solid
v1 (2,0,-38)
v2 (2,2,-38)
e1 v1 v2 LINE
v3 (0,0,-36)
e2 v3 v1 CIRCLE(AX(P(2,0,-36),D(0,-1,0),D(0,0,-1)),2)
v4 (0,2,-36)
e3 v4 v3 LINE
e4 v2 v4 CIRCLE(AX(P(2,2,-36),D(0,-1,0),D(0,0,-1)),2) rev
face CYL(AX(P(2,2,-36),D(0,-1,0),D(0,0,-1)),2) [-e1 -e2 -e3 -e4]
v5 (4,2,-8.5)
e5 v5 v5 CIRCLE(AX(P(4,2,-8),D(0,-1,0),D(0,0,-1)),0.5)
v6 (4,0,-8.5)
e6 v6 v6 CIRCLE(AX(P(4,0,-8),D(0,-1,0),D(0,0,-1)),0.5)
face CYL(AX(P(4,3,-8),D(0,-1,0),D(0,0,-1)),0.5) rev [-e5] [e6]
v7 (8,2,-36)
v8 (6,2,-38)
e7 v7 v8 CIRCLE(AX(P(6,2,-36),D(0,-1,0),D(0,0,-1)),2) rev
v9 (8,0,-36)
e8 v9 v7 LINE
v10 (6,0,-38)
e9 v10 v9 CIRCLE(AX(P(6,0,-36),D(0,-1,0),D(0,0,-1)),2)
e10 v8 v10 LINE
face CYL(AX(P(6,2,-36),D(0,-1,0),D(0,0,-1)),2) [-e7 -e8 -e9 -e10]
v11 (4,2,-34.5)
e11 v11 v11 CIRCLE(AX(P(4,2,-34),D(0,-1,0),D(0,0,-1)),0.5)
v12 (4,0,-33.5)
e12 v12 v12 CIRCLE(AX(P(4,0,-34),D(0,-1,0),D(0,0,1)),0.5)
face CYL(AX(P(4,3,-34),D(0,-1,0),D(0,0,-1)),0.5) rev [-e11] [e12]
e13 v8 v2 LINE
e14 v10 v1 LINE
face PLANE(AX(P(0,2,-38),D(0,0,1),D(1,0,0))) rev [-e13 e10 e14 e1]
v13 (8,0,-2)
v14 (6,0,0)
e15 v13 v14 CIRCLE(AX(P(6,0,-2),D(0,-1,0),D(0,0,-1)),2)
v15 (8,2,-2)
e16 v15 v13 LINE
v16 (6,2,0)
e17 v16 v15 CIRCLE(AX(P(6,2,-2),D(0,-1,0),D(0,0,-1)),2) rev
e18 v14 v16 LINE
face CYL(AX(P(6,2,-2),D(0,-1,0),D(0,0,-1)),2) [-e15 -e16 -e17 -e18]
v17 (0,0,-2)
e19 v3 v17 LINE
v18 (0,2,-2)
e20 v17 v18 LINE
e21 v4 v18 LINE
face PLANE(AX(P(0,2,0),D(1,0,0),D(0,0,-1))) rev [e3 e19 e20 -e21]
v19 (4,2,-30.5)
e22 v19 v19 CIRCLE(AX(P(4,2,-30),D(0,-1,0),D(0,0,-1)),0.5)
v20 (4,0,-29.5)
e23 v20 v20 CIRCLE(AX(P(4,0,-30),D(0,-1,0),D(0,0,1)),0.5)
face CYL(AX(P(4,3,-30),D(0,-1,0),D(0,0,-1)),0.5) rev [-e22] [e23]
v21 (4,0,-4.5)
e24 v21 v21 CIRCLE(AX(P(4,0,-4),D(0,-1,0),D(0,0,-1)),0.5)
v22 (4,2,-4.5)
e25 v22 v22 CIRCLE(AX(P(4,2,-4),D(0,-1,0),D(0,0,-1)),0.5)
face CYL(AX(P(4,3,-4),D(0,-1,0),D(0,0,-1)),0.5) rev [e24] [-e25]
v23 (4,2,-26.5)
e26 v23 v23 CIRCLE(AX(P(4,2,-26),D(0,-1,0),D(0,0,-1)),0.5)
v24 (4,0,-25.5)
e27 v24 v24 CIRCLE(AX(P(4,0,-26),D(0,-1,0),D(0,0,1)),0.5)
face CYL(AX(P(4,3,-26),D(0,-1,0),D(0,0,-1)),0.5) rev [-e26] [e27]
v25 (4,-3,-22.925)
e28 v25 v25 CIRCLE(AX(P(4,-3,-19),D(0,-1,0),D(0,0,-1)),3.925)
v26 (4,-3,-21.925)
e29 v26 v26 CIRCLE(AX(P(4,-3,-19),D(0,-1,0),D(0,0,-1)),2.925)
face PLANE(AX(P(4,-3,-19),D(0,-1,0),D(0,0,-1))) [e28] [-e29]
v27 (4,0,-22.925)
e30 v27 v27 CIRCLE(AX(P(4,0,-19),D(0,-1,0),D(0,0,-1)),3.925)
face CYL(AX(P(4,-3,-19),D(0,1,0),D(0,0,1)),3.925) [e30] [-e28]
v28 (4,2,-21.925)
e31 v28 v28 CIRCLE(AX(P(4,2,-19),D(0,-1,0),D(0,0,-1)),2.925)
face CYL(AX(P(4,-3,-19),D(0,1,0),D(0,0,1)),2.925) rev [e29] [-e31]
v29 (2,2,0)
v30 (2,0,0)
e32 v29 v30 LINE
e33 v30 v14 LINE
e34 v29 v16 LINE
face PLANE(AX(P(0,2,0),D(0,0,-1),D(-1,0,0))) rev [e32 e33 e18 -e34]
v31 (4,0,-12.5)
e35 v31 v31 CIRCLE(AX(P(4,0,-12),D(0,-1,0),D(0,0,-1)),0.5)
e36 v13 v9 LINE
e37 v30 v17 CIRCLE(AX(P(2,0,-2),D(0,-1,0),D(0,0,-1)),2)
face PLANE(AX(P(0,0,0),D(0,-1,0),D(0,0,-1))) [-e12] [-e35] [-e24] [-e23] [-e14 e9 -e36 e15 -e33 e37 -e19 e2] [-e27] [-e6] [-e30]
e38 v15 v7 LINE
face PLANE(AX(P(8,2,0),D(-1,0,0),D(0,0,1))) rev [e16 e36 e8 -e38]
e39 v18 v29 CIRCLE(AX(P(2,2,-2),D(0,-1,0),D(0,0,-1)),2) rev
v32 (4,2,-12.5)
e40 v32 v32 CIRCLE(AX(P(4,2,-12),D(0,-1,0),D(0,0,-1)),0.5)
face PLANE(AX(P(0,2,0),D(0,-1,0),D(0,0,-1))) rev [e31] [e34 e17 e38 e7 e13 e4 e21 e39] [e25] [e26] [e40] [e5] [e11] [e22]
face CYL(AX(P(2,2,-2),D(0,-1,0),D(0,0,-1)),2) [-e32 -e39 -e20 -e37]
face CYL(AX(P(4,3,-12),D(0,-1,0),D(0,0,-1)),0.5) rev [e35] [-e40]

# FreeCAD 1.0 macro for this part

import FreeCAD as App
import Part
import Sketcher

V = App.Vector
Q = App.Units.Quantity


def edges_at(feature, points):
    """Names of the edges that pass closest to the given points."""
    edges = feature.Shape.Edges
    near = lambda p: min(range(len(edges)), key=lambda i: edges[i].distToShape(Part.Vertex(*p))[0])
    return sorted({f"Edge{near(p) + 1}" for p in points})

doc = App.newDocument("Part")
body = doc.addObject("PartDesign::Body", "Body")

# Sketch on XZ plane
sketch1 = body.newObject("Sketcher::SketchObject", "Sketch")
sketch1.AttachmentSupport = (doc.getObject("XZ_Plane"), [""])
sketch1.MapMode = "FlatFace"
sketch1.addGeometry([
    Part.LineSegment(V(0, -38, 0), V(0, 0, 0)),
    Part.LineSegment(V(0, 0, 0), V(8, 0, 0)),
    Part.LineSegment(V(8, 0, 0), V(8, -38, 0)),
    Part.LineSegment(V(8, -38, 0), V(0, -38, 0)),
], False)
sketch1.addConstraint([
    Sketcher.Constraint("Coincident", 0, 2, 1, 1),
    Sketcher.Constraint("Coincident", 1, 2, 2, 1),
    Sketcher.Constraint("Coincident", 2, 2, 3, 1),
    Sketcher.Constraint("Coincident", 3, 2, 0, 1),
    Sketcher.Constraint("Vertical", 0),
    Sketcher.Constraint("Horizontal", 1),
    Sketcher.Constraint("Vertical", 2),
    Sketcher.Constraint("Horizontal", 3),
    Sketcher.Constraint("Coincident", 0, 2, -1, 1),
    Sketcher.Constraint("DistanceX", 1, 1, 1, 2, Q("8 mm")),
    Sketcher.Constraint("DistanceY", 0, 1, 0, 2, Q("38 mm")),
])
pad1 = body.newObject("PartDesign::Pad", "Pad")
pad1.Profile = sketch1
pad1.Length = 2
pad1.Reversed = True

# Sketch on XZ plane
sketch2 = body.newObject("Sketcher::SketchObject", "Sketch001")
sketch2.AttachmentSupport = (doc.getObject("XZ_Plane"), [""])
sketch2.MapMode = "FlatFace"
sketch2.addGeometry([
    Part.Circle(V(4, -19, 0), V(0, 0, 1), 3.9),
    Part.Circle(V(4, -19, 0), V(0, 0, 1), 2.9),
], False)
sketch2.addConstraint([
    Sketcher.Constraint("Coincident", 1, 3, 0, 3),
    Sketcher.Constraint("Diameter", 0, Q("7.85 mm")),
    Sketcher.Constraint("Diameter", 1, Q("5.85 mm")),
    Sketcher.Constraint("DistanceX", -1, 1, 0, 3, Q("4 mm")),
    Sketcher.Constraint("DistanceY", 0, 3, -1, 1, Q("19 mm")),
])
pad2 = body.newObject("PartDesign::Pad", "Pad001")
pad2.Profile = sketch2
pad2.Length = 3

# Sketch on XZ plane
sketch3 = body.newObject("Sketcher::SketchObject", "Sketch002")
sketch3.AttachmentSupport = (doc.getObject("XZ_Plane"), [""])
sketch3.MapMode = "FlatFace"
sketch3.AttachmentOffset = App.Placement(V(0, 0, -3), App.Rotation())
sketch3.addGeometry([
    Part.Circle(V(4, -19, 0), V(0, 0, 1), 2.9),  # 0
    Part.Circle(V(4, -4, 0), V(0, 0, 1), 0.5),  # 1
    Part.Circle(V(4, -8, 0), V(0, 0, 1), 0.5),  # 2
    Part.Circle(V(4, -12, 0), V(0, 0, 1), 0.5),  # 3
    Part.Circle(V(4, -26, 0), V(0, 0, 1), 0.5),  # 4
    Part.Circle(V(4, -30, 0), V(0, 0, 1), 0.5),  # 5
    Part.Circle(V(4, -34, 0), V(0, 0, 1), 0.5),  # 6
], False)
sketch3.addConstraint([
    Sketcher.Constraint("Equal", 1, 2),
    Sketcher.Constraint("Equal", 2, 3),
    Sketcher.Constraint("Equal", 3, 4),
    Sketcher.Constraint("Equal", 4, 5),
    Sketcher.Constraint("Equal", 5, 6),
    Sketcher.Constraint("Vertical", 0, 3, 1, 3),
    Sketcher.Constraint("Vertical", 1, 3, 2, 3),
    Sketcher.Constraint("Vertical", 2, 3, 3, 3),
    Sketcher.Constraint("Vertical", 3, 3, 4, 3),
    Sketcher.Constraint("Vertical", 4, 3, 5, 3),
    Sketcher.Constraint("Vertical", 5, 3, 6, 3),
    Sketcher.Constraint("Diameter", 1, Q("1 mm")),
    Sketcher.Constraint("Diameter", 0, Q("5.85 mm")),
    Sketcher.Constraint("DistanceX", -1, 1, 0, 3, Q("4 mm")),
    Sketcher.Constraint("DistanceY", 0, 3, -1, 1, Q("19 mm")),
    Sketcher.Constraint("DistanceY", 1, 3, -1, 1, Q("4 mm")),
    Sketcher.Constraint("DistanceY", 2, 3, -1, 1, Q("8 mm")),
    Sketcher.Constraint("DistanceY", 3, 3, -1, 1, Q("12 mm")),
    Sketcher.Constraint("DistanceY", 4, 3, -1, 1, Q("26 mm")),
    Sketcher.Constraint("DistanceY", 5, 3, -1, 1, Q("30 mm")),
    Sketcher.Constraint("DistanceY", 6, 3, -1, 1, Q("34 mm")),
])
pocket1 = body.newObject("PartDesign::Pocket", "Pocket")
pocket1.Profile = sketch3
pocket1.Length = 3
pocket1.Reversed = True
doc.recompute()

fillet = body.newObject("PartDesign::Fillet", "Fillet")
fillet.Base = (pocket1, edges_at(pocket1, [
    (0, 1, -38),
    (8, 1, -38),
    (8, 1, 0),
    (0, 1, 0),
]))
fillet.Radius = 2

doc.recompute()
